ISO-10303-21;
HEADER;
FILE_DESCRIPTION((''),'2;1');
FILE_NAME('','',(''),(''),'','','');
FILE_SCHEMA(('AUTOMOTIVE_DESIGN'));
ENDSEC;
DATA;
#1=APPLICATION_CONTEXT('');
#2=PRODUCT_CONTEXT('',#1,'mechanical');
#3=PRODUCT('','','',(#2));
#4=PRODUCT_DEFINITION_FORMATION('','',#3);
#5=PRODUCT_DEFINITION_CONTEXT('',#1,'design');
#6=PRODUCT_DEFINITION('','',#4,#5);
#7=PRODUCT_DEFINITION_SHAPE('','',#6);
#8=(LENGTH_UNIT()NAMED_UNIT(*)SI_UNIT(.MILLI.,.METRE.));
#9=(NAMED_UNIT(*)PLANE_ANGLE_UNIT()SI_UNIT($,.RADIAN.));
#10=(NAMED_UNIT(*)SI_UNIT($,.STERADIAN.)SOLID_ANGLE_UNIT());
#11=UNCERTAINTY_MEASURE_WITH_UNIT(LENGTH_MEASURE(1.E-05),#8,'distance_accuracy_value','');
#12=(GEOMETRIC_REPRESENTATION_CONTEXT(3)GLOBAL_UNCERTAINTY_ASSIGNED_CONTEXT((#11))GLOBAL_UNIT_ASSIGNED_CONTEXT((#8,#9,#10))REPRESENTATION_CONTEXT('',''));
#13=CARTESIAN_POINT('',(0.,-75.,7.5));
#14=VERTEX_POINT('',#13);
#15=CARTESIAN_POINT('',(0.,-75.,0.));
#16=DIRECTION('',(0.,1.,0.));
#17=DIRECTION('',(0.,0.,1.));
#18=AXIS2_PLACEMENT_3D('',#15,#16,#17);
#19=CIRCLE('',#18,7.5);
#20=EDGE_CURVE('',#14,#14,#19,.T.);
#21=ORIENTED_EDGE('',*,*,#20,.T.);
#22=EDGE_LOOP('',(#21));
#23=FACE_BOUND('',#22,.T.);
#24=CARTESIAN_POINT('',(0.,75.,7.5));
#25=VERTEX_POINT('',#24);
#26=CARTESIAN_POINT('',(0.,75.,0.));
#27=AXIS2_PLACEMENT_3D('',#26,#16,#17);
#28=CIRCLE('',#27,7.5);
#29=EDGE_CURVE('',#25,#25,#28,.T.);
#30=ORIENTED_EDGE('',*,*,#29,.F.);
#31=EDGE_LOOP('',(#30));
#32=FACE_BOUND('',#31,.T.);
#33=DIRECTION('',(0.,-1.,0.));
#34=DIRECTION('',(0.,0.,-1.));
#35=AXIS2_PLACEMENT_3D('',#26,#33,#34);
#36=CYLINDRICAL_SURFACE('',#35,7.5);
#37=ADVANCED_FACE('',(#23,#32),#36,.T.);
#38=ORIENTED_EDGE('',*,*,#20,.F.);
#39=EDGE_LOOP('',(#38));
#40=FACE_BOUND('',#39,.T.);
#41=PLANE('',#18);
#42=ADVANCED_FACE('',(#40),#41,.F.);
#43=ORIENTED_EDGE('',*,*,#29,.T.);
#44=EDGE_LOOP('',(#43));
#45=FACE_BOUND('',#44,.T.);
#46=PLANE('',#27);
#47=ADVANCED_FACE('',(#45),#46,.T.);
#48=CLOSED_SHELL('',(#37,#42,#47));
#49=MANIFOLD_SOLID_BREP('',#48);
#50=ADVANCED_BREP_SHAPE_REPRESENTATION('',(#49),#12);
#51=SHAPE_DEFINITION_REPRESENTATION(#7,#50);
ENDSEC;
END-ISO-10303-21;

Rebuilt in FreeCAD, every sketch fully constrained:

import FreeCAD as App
import Part
import Sketcher

doc = App.newDocument("Part")
body = doc.addObject("PartDesign::Body", "Body")

# Sketch on XZ plane
sketch1 = doc.addObject("Sketcher::SketchObject", "Sketch")
body.addObject(sketch1)
sketch1.AttachmentSupport = (doc.XZ_Plane, [""])
sketch1.MapMode = "FlatFace"
sketch1.addGeometry(Part.Circle(App.Vector(0, 0, 0), App.Vector(0, 0, 1), 7.5), False)
sketch1.addConstraint([
    Sketcher.Constraint("Coincident", 0, 3, -1, 1),
    Sketcher.Constraint("Diameter", 0, 15.0),
])
pad1 = doc.addObject("PartDesign::Pad", "Pad")
body.addObject(pad1)
pad1.Profile = sketch1
pad1.Length = 150
pad1.Midplane = True

doc.recompute()
